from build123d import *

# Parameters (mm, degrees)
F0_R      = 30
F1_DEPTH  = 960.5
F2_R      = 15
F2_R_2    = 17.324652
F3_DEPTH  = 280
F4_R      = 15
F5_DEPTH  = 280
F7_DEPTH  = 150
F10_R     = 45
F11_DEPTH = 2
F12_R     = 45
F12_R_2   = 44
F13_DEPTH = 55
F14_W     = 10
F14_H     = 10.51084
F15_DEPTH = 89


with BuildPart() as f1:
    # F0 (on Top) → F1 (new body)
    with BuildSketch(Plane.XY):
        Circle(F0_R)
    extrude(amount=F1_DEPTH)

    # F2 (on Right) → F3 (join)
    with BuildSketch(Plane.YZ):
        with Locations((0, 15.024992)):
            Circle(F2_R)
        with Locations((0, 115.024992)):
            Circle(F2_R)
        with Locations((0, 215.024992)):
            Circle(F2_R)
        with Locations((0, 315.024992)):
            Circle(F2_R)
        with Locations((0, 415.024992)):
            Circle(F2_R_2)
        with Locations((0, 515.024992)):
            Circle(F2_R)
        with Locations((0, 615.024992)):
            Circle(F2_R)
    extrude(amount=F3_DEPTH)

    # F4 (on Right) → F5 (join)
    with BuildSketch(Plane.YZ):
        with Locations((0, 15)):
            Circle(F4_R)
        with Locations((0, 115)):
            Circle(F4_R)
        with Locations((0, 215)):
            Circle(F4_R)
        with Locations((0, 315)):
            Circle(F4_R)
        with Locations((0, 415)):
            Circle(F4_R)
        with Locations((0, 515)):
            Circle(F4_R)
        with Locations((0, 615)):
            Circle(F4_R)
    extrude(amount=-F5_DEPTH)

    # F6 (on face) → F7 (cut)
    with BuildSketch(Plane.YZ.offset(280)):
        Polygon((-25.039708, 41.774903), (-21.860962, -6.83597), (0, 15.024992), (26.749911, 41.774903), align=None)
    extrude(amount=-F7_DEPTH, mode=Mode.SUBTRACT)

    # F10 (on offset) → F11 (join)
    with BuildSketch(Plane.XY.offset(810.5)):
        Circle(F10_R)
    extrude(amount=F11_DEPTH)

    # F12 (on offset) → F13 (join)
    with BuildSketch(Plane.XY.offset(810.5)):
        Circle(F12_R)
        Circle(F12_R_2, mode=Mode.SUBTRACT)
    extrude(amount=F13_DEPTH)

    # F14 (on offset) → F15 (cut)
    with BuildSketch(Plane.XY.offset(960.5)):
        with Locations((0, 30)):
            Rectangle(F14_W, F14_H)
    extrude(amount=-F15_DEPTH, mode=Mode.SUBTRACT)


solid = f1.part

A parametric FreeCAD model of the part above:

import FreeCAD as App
import Part
import Sketcher
from FreeCAD import Vector
Q = App.Units.Quantity

doc = App.newDocument("Part")
params = doc.addObject("Spreadsheet::Sheet", "Params")
for row, (alias, value) in enumerate([
    ("sketch1_diameter", "60 mm"),
    ("pad1_length", "960.5 mm"),
    ("sketch2_diameter", "30 mm"),
    ("pad2_length", "280 mm"),
    ("sketch3_diameter", "30 mm"),
    ("pad3_length", "280 mm"),
    ("pocket1_length", "150 mm"),
    ("sketch5_diameter", "90 mm"),
    ("pad4_length", "2 mm"),
    ("sketch6_diameter", "90 mm"),
    ("sketch6_diameter2", "88 mm"),
    ("pad5_length", "55 mm"),
    ("sketch7_width", "10 mm"),
    ("pocket2_length", "89 mm"),
], start=1):
    params.set(f"A{row}", alias)
    params.set(f"B{row}", "=" + value)
    params.setAlias(f"B{row}", alias)

body = doc.addObject("PartDesign::Body", "Body")

sketch1 = body.newObject("Sketcher::SketchObject", "Sketch")
sketch1.AttachmentSupport = (doc.getObject("XY_Plane"), [""])
sketch1.MapMode = "FlatFace"
sketch1.addGeometry(Part.Circle(Vector(0, 0, 0), Vector(0, 0, 1), 30), False)
sketch1.addConstraint([
    Sketcher.Constraint("Coincident", 0, 3, -1, 1),
    Sketcher.Constraint("Diameter", 0, Q("60 mm")),
])
sketch1.setExpression("Constraints[1]", "Params.sketch1_diameter")
pad1 = body.newObject("PartDesign::Pad", "Pad")
pad1.Profile = sketch1
pad1.setExpression("Length", "Params.pad1_length")

sketch2 = body.newObject("Sketcher::SketchObject", "Sketch001")
sketch2.AttachmentSupport = (doc.getObject("YZ_Plane"), [""])
sketch2.MapMode = "FlatFace"
sketch2.addGeometry([
    Part.Circle(Vector(0, 15, 0), Vector(0, 0, 1), 15),
    Part.Circle(Vector(0, 115, 0), Vector(0, 0, 1), 15),
    Part.Circle(Vector(0, 215, 0), Vector(0, 0, 1), 15),
    Part.Circle(Vector(0, 315, 0), Vector(0, 0, 1), 15),
    Part.Circle(Vector(0, 415, 0), Vector(0, 0, 1), 17),
    Part.Circle(Vector(0, 515, 0), Vector(0, 0, 1), 15),
    Part.Circle(Vector(0, 615, 0), Vector(0, 0, 1), 15),
], False)
sketch2.addConstraint([
    Sketcher.Constraint("Equal", 0, 1),
    Sketcher.Constraint("Equal", 1, 2),
    Sketcher.Constraint("Equal", 2, 3),
    Sketcher.Constraint("Equal", 3, 5),
    Sketcher.Constraint("Equal", 5, 6),
    Sketcher.Constraint("PointOnObject", 0, 3, -2),
    Sketcher.Constraint("PointOnObject", 1, 3, -2),
    Sketcher.Constraint("PointOnObject", 2, 3, -2),
    Sketcher.Constraint("PointOnObject", 3, 3, -2),
    Sketcher.Constraint("PointOnObject", 4, 3, -2),
    Sketcher.Constraint("PointOnObject", 5, 3, -2),
    Sketcher.Constraint("PointOnObject", 6, 3, -2),
    Sketcher.Constraint("Diameter", 0, Q("30 mm")),
    Sketcher.Constraint("DistanceY", 0, 3, 1, 3, Q("100 mm")),
    Sketcher.Constraint("DistanceY", 1, 3, 2, 3, Q("100 mm")),
    Sketcher.Constraint("DistanceY", 2, 3, 3, 3, Q("100 mm")),
    Sketcher.Constraint("DistanceY", 3, 3, 4, 3, Q("100 mm")),
    Sketcher.Constraint("DistanceY", 4, 3, 5, 3, Q("100 mm")),
    Sketcher.Constraint("DistanceY", 5, 3, 6, 3, Q("100 mm")),
    Sketcher.Constraint("Diameter", 4, Q("34.649304 mm")),
    Sketcher.Constraint("DistanceY", -1, 1, 0, 3, Q("15.024992 mm")),
])
sketch2.setExpression("Constraints[12]", "Params.sketch2_diameter")
pad2 = body.newObject("PartDesign::Pad", "Pad001")
pad2.Profile = sketch2
pad2.setExpression("Length", "Params.pad2_length")

sketch3 = body.newObject("Sketcher::SketchObject", "Sketch002")
sketch3.AttachmentSupport = (doc.getObject("YZ_Plane"), [""])
sketch3.MapMode = "FlatFace"
sketch3.addGeometry([
    Part.Circle(Vector(0, 15, 0), Vector(0, 0, 1), 15),
    Part.Circle(Vector(0, 115, 0), Vector(0, 0, 1), 15),
    Part.Circle(Vector(0, 215, 0), Vector(0, 0, 1), 15),
    Part.Circle(Vector(0, 315, 0), Vector(0, 0, 1), 15),
    Part.Circle(Vector(0, 415, 0), Vector(0, 0, 1), 15),
    Part.Circle(Vector(0, 515, 0), Vector(0, 0, 1), 15),
    Part.Circle(Vector(0, 615, 0), Vector(0, 0, 1), 15),
], False)
sketch3.addConstraint([
    Sketcher.Constraint("Equal", 0, 1),
    Sketcher.Constraint("Equal", 1, 2),
    Sketcher.Constraint("Equal", 2, 3),
    Sketcher.Constraint("Equal", 3, 4),
    Sketcher.Constraint("Equal", 4, 5),
    Sketcher.Constraint("Equal", 5, 6),
    Sketcher.Constraint("PointOnObject", 0, 3, -2),
    Sketcher.Constraint("PointOnObject", 1, 3, -2),
    Sketcher.Constraint("PointOnObject", 2, 3, -2),
    Sketcher.Constraint("PointOnObject", 3, 3, -2),
    Sketcher.Constraint("PointOnObject", 4, 3, -2),
    Sketcher.Constraint("PointOnObject", 5, 3, -2),
    Sketcher.Constraint("PointOnObject", 6, 3, -2),
    Sketcher.Constraint("Diameter", 0, Q("30 mm")),
    Sketcher.Constraint("DistanceY", -1, 1, 0, 3, Q("15 mm")),
    Sketcher.Constraint("DistanceY", -1, 1, 1, 3, Q("115 mm")),
    Sketcher.Constraint("DistanceY", -1, 1, 2, 3, Q("215 mm")),
    Sketcher.Constraint("DistanceY", -1, 1, 3, 3, Q("315 mm")),
    Sketcher.Constraint("DistanceY", -1, 1, 4, 3, Q("415 mm")),
    Sketcher.Constraint("DistanceY", -1, 1, 5, 3, Q("515 mm")),
    Sketcher.Constraint("DistanceY", -1, 1, 6, 3, Q("615 mm")),
])
sketch3.setExpression("Constraints[13]", "Params.sketch3_diameter")
pad3 = body.newObject("PartDesign::Pad", "Pad002")
pad3.Profile = sketch3
pad3.setExpression("Length", "Params.pad3_length")
pad3.Reversed = True

sketch4 = body.newObject("Sketcher::SketchObject", "Sketch003")
sketch4.AttachmentSupport = (doc.getObject("YZ_Plane"), [""])
sketch4.MapMode = "FlatFace"
sketch4.AttachmentOffset = App.Placement(Vector(0, 0, 280), App.Rotation())
sketch4.addGeometry([
    Part.LineSegment(Vector(-25, 42, 0), Vector(-22, -7, 0)),
    Part.LineSegment(Vector(-22, -7, 0), Vector(27, 42, 0)),
    Part.LineSegment(Vector(27, 42, 0), Vector(-25, 42, 0)),
], False)
sketch4.addConstraint([
    Sketcher.Constraint("Coincident", 0, 2, 1, 1),
    Sketcher.Constraint("Coincident", 1, 2, 2, 1),
    Sketcher.Constraint("Coincident", 2, 2, 0, 1),
    Sketcher.Constraint("Horizontal", 2),
    Sketcher.Constraint("Angle", 1, Q("45 deg")),
    Sketcher.Constraint("DistanceX", 2, 2, 2, 1, Q("51.789619 mm")),
    Sketcher.Constraint("DistanceY", 0, 2, -1, 1, Q("6.83597 mm")),
    Sketcher.Constraint("DistanceX", -1, 1, 1, 2, Q("26.749911 mm")),
    Sketcher.Constraint("Distance", 0, Q("48.714694 mm")),
])
pocket1 = body.newObject("PartDesign::Pocket", "Pocket")
pocket1.Profile = sketch4
pocket1.setExpression("Length", "Params.pocket1_length")

sketch5 = body.newObject("Sketcher::SketchObject", "Sketch004")
sketch5.AttachmentSupport = (doc.getObject("XY_Plane"), [""])
sketch5.MapMode = "FlatFace"
sketch5.AttachmentOffset = App.Placement(Vector(0, 0, 810.5), App.Rotation())
sketch5.addGeometry(Part.Circle(Vector(0, 0, 0), Vector(0, 0, 1), 45), False)
sketch5.addConstraint([
    Sketcher.Constraint("Coincident", 0, 3, -1, 1),
    Sketcher.Constraint("Diameter", 0, Q("90 mm")),
])
sketch5.setExpression("Constraints[1]", "Params.sketch5_diameter")
pad4 = body.newObject("PartDesign::Pad", "Pad003")
pad4.Profile = sketch5
pad4.setExpression("Length", "Params.pad4_length")

sketch6 = body.newObject("Sketcher::SketchObject", "Sketch005")
sketch6.AttachmentSupport = (doc.getObject("XY_Plane"), [""])
sketch6.MapMode = "FlatFace"
sketch6.AttachmentOffset = App.Placement(Vector(0, 0, 810.5), App.Rotation())
sketch6.addGeometry([
    Part.Circle(Vector(0, 0, 0), Vector(0, 0, 1), 45),
    Part.Circle(Vector(0, 0, 0), Vector(0, 0, 1), 44),
], False)
sketch6.addConstraint([
    Sketcher.Constraint("Coincident", 0, 3, -1, 1),
    Sketcher.Constraint("Coincident", 1, 3, -1, 1),
    Sketcher.Constraint("Diameter", 0, Q("90 mm")),
    Sketcher.Constraint("Diameter", 1, Q("88 mm")),
])
sketch6.setExpression("Constraints[2]", "Params.sketch6_diameter")
sketch6.setExpression("Constraints[3]", "Params.sketch6_diameter2")
pad5 = body.newObject("PartDesign::Pad", "Pad004")
pad5.Profile = sketch6
pad5.setExpression("Length", "Params.pad5_length")

sketch7 = body.newObject("Sketcher::SketchObject", "Sketch006")
sketch7.AttachmentSupport = (doc.getObject("XY_Plane"), [""])
sketch7.MapMode = "FlatFace"
sketch7.AttachmentOffset = App.Placement(Vector(0, 0, 960.5), App.Rotation())
sketch7.addGeometry([
    Part.LineSegment(Vector(-5, 35, 0), Vector(-5, 25, 0)),
    Part.LineSegment(Vector(-5, 25, 0), Vector(5, 25, 0)),
    Part.LineSegment(Vector(5, 25, 0), Vector(5, 35, 0)),
    Part.LineSegment(Vector(5, 35, 0), Vector(-5, 35, 0)),
], False)
sketch7.addConstraint([
    Sketcher.Constraint("Coincident", 0, 2, 1, 1),
    Sketcher.Constraint("Coincident", 1, 2, 2, 1),
    Sketcher.Constraint("Coincident", 2, 2, 3, 1),
    Sketcher.Constraint("Coincident", 3, 2, 0, 1),
    Sketcher.Constraint("Vertical", 0),
    Sketcher.Constraint("Horizontal", 1),
    Sketcher.Constraint("Vertical", 2),
    Sketcher.Constraint("Horizontal", 3),
    Sketcher.Constraint("DistanceX", 1, 1, 1, 2, Q("10 mm")),
    Sketcher.Constraint("DistanceX", 0, 2, -1, 1, Q("5 mm")),
    Sketcher.Constraint("DistanceY", 0, 2, 0, 1, Q("10.51084 mm")),
    Sketcher.Constraint("DistanceY", -1, 1, 0, 2, Q("24.74458 mm")),
])
sketch7.setExpression("Constraints[8]", "Params.sketch7_width")
pocket2 = body.newObject("PartDesign::Pocket", "Pocket001")
pocket2.Profile = sketch7
pocket2.setExpression("Length", "Params.pocket2_length")

doc.recompute()
